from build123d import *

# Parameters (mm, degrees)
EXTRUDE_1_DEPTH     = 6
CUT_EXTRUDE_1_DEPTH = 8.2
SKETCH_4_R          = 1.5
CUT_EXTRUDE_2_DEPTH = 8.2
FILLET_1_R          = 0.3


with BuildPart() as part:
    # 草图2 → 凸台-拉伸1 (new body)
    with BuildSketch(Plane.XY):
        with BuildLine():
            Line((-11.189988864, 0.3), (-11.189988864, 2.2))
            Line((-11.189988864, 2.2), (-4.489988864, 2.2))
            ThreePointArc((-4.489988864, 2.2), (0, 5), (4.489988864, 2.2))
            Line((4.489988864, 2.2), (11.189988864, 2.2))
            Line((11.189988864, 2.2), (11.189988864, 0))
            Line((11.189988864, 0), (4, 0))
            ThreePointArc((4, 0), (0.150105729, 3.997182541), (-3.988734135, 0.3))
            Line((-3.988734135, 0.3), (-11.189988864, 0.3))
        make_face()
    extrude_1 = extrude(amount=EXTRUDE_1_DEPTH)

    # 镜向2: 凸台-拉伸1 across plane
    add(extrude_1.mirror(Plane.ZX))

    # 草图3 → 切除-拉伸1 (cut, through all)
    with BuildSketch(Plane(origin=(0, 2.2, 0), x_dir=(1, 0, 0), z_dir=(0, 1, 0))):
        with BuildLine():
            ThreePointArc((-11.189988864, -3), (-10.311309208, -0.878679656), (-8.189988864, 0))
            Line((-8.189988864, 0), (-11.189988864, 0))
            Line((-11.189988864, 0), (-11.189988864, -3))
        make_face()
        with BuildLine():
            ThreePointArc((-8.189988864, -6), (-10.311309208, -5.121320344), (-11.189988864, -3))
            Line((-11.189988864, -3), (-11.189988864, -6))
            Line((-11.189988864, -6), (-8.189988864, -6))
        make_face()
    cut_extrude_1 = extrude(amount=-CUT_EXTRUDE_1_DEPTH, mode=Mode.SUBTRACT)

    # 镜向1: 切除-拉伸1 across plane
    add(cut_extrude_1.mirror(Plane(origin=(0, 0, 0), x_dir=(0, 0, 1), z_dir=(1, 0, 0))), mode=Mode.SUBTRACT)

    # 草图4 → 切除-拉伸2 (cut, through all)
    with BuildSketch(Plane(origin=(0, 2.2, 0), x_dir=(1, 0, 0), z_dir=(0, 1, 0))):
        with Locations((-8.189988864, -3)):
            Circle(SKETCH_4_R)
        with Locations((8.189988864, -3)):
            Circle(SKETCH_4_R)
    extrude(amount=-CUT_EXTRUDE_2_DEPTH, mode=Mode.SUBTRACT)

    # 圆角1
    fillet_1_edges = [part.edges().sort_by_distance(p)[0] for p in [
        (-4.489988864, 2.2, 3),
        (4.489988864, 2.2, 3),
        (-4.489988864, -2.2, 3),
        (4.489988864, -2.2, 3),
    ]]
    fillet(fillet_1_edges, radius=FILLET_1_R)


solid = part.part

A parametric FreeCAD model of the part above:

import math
import FreeCAD as App
import Part
import Sketcher
Q = App.Units.Quantity


def edges_at(feature, points):
    """Names of the edges that pass closest to the given points."""
    edges = feature.Shape.Edges
    near = lambda p: min(range(len(edges)), key=lambda i: edges[i].distToShape(Part.Vertex(*p))[0])
    return sorted({f"Edge{near(p) + 1}" for p in points})

doc = App.newDocument("Part")
body = doc.addObject("PartDesign::Body", "Body")

sketch1 = body.newObject("Sketcher::SketchObject", "Sketch")
sketch1.AttachmentSupport = (doc.getObject("XY_Plane"), [""])
sketch1.MapMode = "FlatFace"
sketch1.addGeometry(Part.LineSegment(App.Vector(-11.2, 2.2, 0), App.Vector(-11.2, 0.3, 0)), False)
sketch1.addGeometry(Part.LineSegment(App.Vector(-11.2, 0.3, 0), App.Vector(-4, 0.3, 0)), False)
sketch1.addGeometry(Part.ArcOfCircle(Part.Circle(App.Vector(0, 0, 0), App.Vector(0, 0, 1), 4), math.radians(0), math.radians(176)), False)
sketch1.addGeometry(Part.LineSegment(App.Vector(4, 0, 0), App.Vector(11.2, 0, 0)), False)
sketch1.addGeometry(Part.LineSegment(App.Vector(11.2, 0, 0), App.Vector(11.2, 2.2, 0)), False)
sketch1.addGeometry(Part.LineSegment(App.Vector(11.2, 2.2, 0), App.Vector(4.5, 2.2, 0)), False)
sketch1.addGeometry(Part.ArcOfCircle(Part.Circle(App.Vector(0, 0, 0), App.Vector(0, 0, 1), 5), math.radians(26), math.radians(154)), False)
sketch1.addGeometry(Part.LineSegment(App.Vector(-4.5, 2.2, 0), App.Vector(-11.2, 2.2, 0)), False)
sketch1.addConstraint(Sketcher.Constraint("Coincident", 0, 2, 1, 1))
sketch1.addConstraint(Sketcher.Constraint("Coincident", 1, 2, 2, 2))
sketch1.addConstraint(Sketcher.Constraint("Coincident", 2, 1, 3, 1))
sketch1.addConstraint(Sketcher.Constraint("Coincident", 3, 2, 4, 1))
sketch1.addConstraint(Sketcher.Constraint("Coincident", 4, 2, 5, 1))
sketch1.addConstraint(Sketcher.Constraint("Coincident", 5, 2, 6, 1))
sketch1.addConstraint(Sketcher.Constraint("Coincident", 6, 2, 7, 1))
sketch1.addConstraint(Sketcher.Constraint("Coincident", 7, 2, 0, 1))
sketch1.addConstraint(Sketcher.Constraint("Vertical", 0))
sketch1.addConstraint(Sketcher.Constraint("Horizontal", 1))
sketch1.addConstraint(Sketcher.Constraint("Horizontal", 3))
sketch1.addConstraint(Sketcher.Constraint("Vertical", 4))
sketch1.addConstraint(Sketcher.Constraint("Horizontal", 5))
sketch1.addConstraint(Sketcher.Constraint("Horizontal", 7))
sketch1.addConstraint(Sketcher.Constraint("Coincident", 2, 3, -1, 1))
sketch1.addConstraint(Sketcher.Constraint("Coincident", 6, 3, -1, 1))
sketch1.addConstraint(Sketcher.Constraint("Symmetric", 4, 2, 7, 2, -2))
sketch1.addConstraint(Sketcher.Constraint("PointOnObject", 2, 1, -1))
sketch1.addConstraint(Sketcher.Constraint("Radius", 2, Q("4 mm")))
sketch1.addConstraint(Sketcher.Constraint("Radius", 6, Q("5 mm")))
sketch1.addConstraint(Sketcher.Constraint("DistanceX", 5, 2, 5, 1, Q("6.7 mm")))
sketch1.addConstraint(Sketcher.Constraint("DistanceY", 0, 2, 0, 1, Q("1.9 mm")))
sketch1.addConstraint(Sketcher.Constraint("DistanceY", 4, 1, 4, 2, Q("2.2 mm")))
pad1 = body.newObject("PartDesign::Pad", "Pad")
pad1.Profile = sketch1
pad1.Length = 6
doc.recompute()

mirrored = body.newObject("PartDesign::Mirrored", "Mirrored")
mirrored.Originals = [pad1]
mirrored.MirrorPlane = (doc.getObject("XZ_Plane"), [""])
body.Tip = mirrored

sketch2 = body.newObject("Sketcher::SketchObject", "Sketch001")
sketch2.AttachmentSupport = (doc.getObject("XZ_Plane"), [""])
sketch2.MapMode = "FlatFace"
sketch2.AttachmentOffset = App.Placement(App.Vector(0, 0, -2.2), App.Rotation())
sketch2.addGeometry(Part.ArcOfCircle(Part.Circle(App.Vector(-8.2, 3, 0), App.Vector(0, 0, 1), 3), math.radians(180), math.radians(270)), False)
sketch2.addGeometry(Part.LineSegment(App.Vector(-8.2, 0, 0), App.Vector(-11.2, 0, 0)), False)
sketch2.addGeometry(Part.LineSegment(App.Vector(-11.2, 0, 0), App.Vector(-11.2, 3, 0)), False)
sketch2.addGeometry(Part.ArcOfCircle(Part.Circle(App.Vector(-8.2, 3, 0), App.Vector(0, 0, 1), 3), math.radians(90), math.radians(180)), False)
sketch2.addGeometry(Part.LineSegment(App.Vector(-11.2, 3, 0), App.Vector(-11.2, 6, 0)), False)
sketch2.addGeometry(Part.LineSegment(App.Vector(-11.2, 6, 0), App.Vector(-8.2, 6, 0)), False)
sketch2.addConstraint(Sketcher.Constraint("Tangent", 0, 2, 1, 1))
sketch2.addConstraint(Sketcher.Constraint("Coincident", 1, 2, 2, 1))
sketch2.addConstraint(Sketcher.Constraint("Tangent", 2, 2, 0, 1))
sketch2.addConstraint(Sketcher.Constraint("Tangent", 3, 2, 4, 1))
sketch2.addConstraint(Sketcher.Constraint("Coincident", 4, 2, 5, 1))
sketch2.addConstraint(Sketcher.Constraint("Tangent", 5, 2, 3, 1))
sketch2.addConstraint(Sketcher.Constraint("Horizontal", 1))
sketch2.addConstraint(Sketcher.Constraint("Vertical", 2))
sketch2.addConstraint(Sketcher.Constraint("Vertical", 4))
sketch2.addConstraint(Sketcher.Constraint("Horizontal", 5))
sketch2.addConstraint(Sketcher.Constraint("Coincident", 3, 3, 0, 3))
sketch2.addConstraint(Sketcher.Constraint("Equal", 0, 3))
sketch2.addConstraint(Sketcher.Constraint("PointOnObject", 0, 2, -1))
sketch2.addConstraint(Sketcher.Constraint("Radius", 0, Q("3 mm")))
sketch2.addConstraint(Sketcher.Constraint("DistanceX", 0, 3, -1, 1, Q("8.189989 mm")))
pocket1 = body.newObject("PartDesign::Pocket", "Pocket")
pocket1.Profile = sketch2
pocket1.Type = "ThroughAll"
pocket1.Reversed = True
doc.recompute()

mirrored2 = body.newObject("PartDesign::Mirrored", "Mirrored001")
mirrored2.Originals = [pocket1]
mirrored2.MirrorPlane = (doc.getObject("YZ_Plane"), [""])
body.Tip = mirrored2

sketch3 = body.newObject("Sketcher::SketchObject", "Sketch002")
sketch3.AttachmentSupport = (doc.getObject("XZ_Plane"), [""])
sketch3.MapMode = "FlatFace"
sketch3.AttachmentOffset = App.Placement(App.Vector(0, 0, -2.2), App.Rotation())
sketch3.addGeometry(Part.Circle(App.Vector(-8.2, 3, 0), App.Vector(0, 0, 1), 1.5), False)
sketch3.addGeometry(Part.Circle(App.Vector(8.2, 3, 0), App.Vector(0, 0, 1), 1.5), False)
sketch3.addConstraint(Sketcher.Constraint("Equal", 0, 1))
sketch3.addConstraint(Sketcher.Constraint("Symmetric", 0, 3, 1, 3, -2))
sketch3.addConstraint(Sketcher.Constraint("Diameter", 0, Q("3 mm")))
sketch3.addConstraint(Sketcher.Constraint("DistanceY", -1, 1, 0, 3, Q("3 mm")))
sketch3.addConstraint(Sketcher.Constraint("DistanceX", 0, 3, -1, 1, Q("8.189989 mm")))
pocket2 = body.newObject("PartDesign::Pocket", "Pocket001")
pocket2.Profile = sketch3
pocket2.Type = "ThroughAll"
pocket2.Reversed = True
doc.recompute()

fillet = body.newObject("PartDesign::Fillet", "Fillet")
fillet.Base = (pocket2, edges_at(pocket2, [
    (-4.49, 2.2, 3),
    (4.49, 2.2, 3),
    (-4.49, -2.2, 3),
    (4.49, -2.2, 3),
]))
fillet.Radius = 0.3

doc.recompute()
